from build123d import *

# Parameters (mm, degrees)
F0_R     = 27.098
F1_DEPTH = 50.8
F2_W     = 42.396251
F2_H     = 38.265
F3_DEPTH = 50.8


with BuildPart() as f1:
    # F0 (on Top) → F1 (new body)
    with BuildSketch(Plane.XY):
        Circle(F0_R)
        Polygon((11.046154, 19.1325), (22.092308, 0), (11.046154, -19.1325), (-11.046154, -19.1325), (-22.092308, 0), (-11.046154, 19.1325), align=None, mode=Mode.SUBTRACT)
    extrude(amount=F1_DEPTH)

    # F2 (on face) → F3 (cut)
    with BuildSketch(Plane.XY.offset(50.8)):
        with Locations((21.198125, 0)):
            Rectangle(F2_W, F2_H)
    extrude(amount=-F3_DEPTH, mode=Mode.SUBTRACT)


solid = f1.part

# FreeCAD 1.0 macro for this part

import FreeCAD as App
import Part
import Sketcher
Q = App.Units.Quantity


def add_polygon(sketch, points):
    """Adds a closed chain of lines whose ends are joined by coincident constraints."""
    first, n = sketch.GeometryCount, len(points)
    for a, b in zip(points, points[1:] + points[:1]):
        sketch.addGeometry(Part.LineSegment(App.Vector(*a, 0), App.Vector(*b, 0)), False)
    for i in range(n):
        sketch.addConstraint(Sketcher.Constraint("Coincident", first + i, 2, first + (i + 1) % n, 1))

doc = App.newDocument("Part")
params = doc.addObject("Spreadsheet::Sheet", "Params")
for row, (alias, value) in enumerate([
    ("pad1_length", "2 in"),
    ("pocket1_length", "2 in"),
], start=1):
    params.set(f"A{row}", alias)
    params.set(f"B{row}", "=" + value)
    params.setAlias(f"B{row}", alias)

body = doc.addObject("PartDesign::Body", "Body")

# Sketch on XY plane
sketch1 = body.newObject("Sketcher::SketchObject", "Sketch")
sketch1.AttachmentSupport = (doc.getObject("XY_Plane"), [""])
sketch1.MapMode = "FlatFace"
sketch1.addGeometry(Part.Circle(App.Vector(0, 0, 0), App.Vector(0, 0, 1), 27), False)  # 0
add_polygon(sketch1, [(-11, 19), (11, 19), (22, 0), (11, -19), (-11, -19), (-22, 0)])  # lines 1-6
sketch1.addConstraint(Sketcher.Constraint("Horizontal", 1))
sketch1.addConstraint(Sketcher.Constraint("Horizontal", 4))
sketch1.addConstraint(Sketcher.Constraint("Coincident", 0, 3, -1, 1))
sketch1.addConstraint(Sketcher.Constraint("Symmetric", 1, 2, 4, 2, -1, 1))
sketch1.addConstraint(Sketcher.Constraint("Symmetric", 2, 2, 5, 2, -1, 1))
sketch1.addConstraint(Sketcher.Constraint("PointOnObject", 2, 2, -1))
sketch1.addConstraint(Sketcher.Constraint("Parallel", 3, 6))
sketch1.addConstraint(Sketcher.Constraint("Vertical", 1, 2, 3, 2))
sketch1.addConstraint(Sketcher.Constraint("Angle", 2, Q("-60 deg")))
sketch1.addConstraint(Sketcher.Constraint("Diameter", 0, Q("54.196 mm")))
sketch1.addConstraint(Sketcher.Constraint("DistanceY", -1, 1, 1, 2, Q("19.1325 mm")))
sketch1.addConstraint(Sketcher.Constraint("DistanceX", 1, 1, 1, 2, Q("22.092308 mm")))
pad1 = body.newObject("PartDesign::Pad", "Pad")
pad1.Profile = sketch1
pad1.setExpression("Length", "Params.pad1_length")

# Sketch on XY plane
sketch2 = body.newObject("Sketcher::SketchObject", "Sketch001")
sketch2.AttachmentSupport = (doc.getObject("XY_Plane"), [""])
sketch2.MapMode = "FlatFace"
sketch2.AttachmentOffset = App.Placement(App.Vector(0, 0, 2 * 25.4), App.Rotation())
add_polygon(sketch2, [(0, 19), (0, -19), (42, -19), (42, 19)])  # lines 0-3
sketch2.addConstraint(Sketcher.Constraint("Vertical", 0))
sketch2.addConstraint(Sketcher.Constraint("Horizontal", 1))
sketch2.addConstraint(Sketcher.Constraint("Vertical", 2))
sketch2.addConstraint(Sketcher.Constraint("Horizontal", 3))
sketch2.addConstraint(Sketcher.Constraint("Symmetric", 0, 2, 3, 2, -1, 1))
sketch2.addConstraint(Sketcher.Constraint("DistanceY", 0, 2, 0, 1, Q("38.265 mm")))
sketch2.addConstraint(Sketcher.Constraint("DistanceX", 1, 1, 1, 2, Q("42.396251 mm")))
pocket1 = body.newObject("PartDesign::Pocket", "Pocket")
pocket1.Profile = sketch2
pocket1.setExpression("Length", "Params.pocket1_length")

doc.recompute()
